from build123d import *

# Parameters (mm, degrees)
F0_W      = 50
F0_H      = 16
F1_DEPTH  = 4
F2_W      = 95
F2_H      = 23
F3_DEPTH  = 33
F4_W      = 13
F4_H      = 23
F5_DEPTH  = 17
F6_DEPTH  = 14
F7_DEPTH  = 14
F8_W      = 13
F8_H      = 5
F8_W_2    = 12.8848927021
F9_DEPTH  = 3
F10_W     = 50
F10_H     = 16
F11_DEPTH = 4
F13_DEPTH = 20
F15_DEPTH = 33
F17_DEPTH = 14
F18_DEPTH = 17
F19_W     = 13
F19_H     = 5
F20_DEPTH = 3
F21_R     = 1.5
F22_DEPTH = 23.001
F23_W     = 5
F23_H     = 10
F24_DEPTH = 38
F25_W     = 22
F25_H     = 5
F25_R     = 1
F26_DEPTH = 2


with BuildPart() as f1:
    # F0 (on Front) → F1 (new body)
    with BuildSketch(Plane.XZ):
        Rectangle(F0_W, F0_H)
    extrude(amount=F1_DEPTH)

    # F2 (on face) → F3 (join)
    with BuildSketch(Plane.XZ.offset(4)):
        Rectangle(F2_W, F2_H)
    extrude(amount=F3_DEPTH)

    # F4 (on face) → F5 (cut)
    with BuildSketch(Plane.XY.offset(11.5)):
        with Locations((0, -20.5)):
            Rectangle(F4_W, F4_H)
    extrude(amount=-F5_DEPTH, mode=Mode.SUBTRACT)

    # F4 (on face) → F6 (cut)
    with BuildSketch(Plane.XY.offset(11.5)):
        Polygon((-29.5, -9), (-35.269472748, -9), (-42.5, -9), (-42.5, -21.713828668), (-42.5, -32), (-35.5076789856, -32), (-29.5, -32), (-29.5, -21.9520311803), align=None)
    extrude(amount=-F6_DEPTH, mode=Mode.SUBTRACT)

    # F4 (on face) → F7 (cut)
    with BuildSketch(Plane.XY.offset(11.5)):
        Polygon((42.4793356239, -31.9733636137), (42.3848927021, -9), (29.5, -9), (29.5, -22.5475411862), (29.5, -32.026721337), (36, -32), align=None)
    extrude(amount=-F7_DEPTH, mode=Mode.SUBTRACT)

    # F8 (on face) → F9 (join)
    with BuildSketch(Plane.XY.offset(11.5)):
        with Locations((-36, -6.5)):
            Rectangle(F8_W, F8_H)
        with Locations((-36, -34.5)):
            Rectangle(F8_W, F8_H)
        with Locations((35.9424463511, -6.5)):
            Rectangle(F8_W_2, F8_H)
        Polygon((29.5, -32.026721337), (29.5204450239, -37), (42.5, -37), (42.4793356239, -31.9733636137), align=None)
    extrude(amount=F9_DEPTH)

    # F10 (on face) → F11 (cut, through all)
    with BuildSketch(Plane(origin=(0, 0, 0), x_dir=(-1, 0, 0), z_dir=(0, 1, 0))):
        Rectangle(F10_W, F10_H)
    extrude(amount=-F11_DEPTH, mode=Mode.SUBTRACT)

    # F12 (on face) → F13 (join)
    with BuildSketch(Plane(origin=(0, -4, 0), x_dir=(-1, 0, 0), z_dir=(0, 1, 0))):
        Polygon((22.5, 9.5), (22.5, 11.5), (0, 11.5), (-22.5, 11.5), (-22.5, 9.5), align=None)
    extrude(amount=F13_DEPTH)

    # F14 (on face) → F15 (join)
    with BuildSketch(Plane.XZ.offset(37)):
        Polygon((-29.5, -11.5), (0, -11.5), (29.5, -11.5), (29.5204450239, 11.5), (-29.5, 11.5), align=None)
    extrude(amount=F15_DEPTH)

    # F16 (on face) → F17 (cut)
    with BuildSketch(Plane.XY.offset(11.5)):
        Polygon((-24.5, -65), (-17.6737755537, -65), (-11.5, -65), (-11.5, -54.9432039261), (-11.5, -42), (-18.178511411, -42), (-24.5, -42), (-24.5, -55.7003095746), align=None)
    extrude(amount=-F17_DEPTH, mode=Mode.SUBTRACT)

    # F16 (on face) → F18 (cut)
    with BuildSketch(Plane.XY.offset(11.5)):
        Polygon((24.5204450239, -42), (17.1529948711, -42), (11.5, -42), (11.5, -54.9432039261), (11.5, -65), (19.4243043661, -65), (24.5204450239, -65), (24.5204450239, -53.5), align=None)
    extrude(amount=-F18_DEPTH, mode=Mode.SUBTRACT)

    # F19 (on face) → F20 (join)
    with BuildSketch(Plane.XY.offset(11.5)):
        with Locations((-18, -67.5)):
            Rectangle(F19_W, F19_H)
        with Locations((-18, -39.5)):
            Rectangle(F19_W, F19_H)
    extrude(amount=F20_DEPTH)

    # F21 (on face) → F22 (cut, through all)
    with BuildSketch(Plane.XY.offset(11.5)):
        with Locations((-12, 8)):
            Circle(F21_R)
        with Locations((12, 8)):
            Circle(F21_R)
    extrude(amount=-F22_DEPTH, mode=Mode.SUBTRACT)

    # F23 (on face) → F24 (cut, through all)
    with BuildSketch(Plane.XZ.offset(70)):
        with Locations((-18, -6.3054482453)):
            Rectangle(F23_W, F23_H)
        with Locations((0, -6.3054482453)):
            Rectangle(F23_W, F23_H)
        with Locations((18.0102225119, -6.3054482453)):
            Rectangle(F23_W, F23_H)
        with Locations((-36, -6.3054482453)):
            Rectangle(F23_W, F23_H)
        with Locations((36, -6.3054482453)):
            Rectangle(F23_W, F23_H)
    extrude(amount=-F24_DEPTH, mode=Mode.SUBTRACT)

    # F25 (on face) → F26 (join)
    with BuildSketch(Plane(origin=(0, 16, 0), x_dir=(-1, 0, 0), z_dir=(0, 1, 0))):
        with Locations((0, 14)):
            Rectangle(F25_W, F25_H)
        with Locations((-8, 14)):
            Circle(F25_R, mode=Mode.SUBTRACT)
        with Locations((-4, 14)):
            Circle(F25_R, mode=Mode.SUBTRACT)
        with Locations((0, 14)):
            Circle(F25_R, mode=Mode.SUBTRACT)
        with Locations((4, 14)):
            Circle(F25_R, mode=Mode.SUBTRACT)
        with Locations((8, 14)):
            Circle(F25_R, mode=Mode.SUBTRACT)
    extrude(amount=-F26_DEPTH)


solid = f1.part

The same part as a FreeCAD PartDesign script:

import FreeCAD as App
import Part
import Sketcher

V = App.Vector


def add_polygon(sketch, points):
    """Adds a closed chain of lines whose ends are joined by coincident constraints."""
    first, n = sketch.GeometryCount, len(points)
    for a, b in zip(points, points[1:] + points[:1]):
        sketch.addGeometry(Part.LineSegment(App.Vector(*a, 0), App.Vector(*b, 0)), False)
    for i in range(n):
        sketch.addConstraint(Sketcher.Constraint("Coincident", first + i, 2, first + (i + 1) % n, 1))

doc = App.newDocument("Part")
body = doc.addObject("PartDesign::Body", "Body")

# Sketch on XZ plane
sketch1 = body.newObject("Sketcher::SketchObject", "Sketch")
sketch1.AttachmentSupport = (doc.getObject("XZ_Plane"), [""])
sketch1.MapMode = "FlatFace"
add_polygon(sketch1, [(-25, 8), (-25, -8), (25, -8), (25, 8)])  # lines 0-3
sketch1.addConstraint([
    Sketcher.Constraint("Vertical", 0),
    Sketcher.Constraint("Horizontal", 1),
    Sketcher.Constraint("Vertical", 2),
    Sketcher.Constraint("Horizontal", 3),
    Sketcher.Constraint("Symmetric", 0, 2, 2, 2, -1, 1),
    Sketcher.Constraint("DistanceX", 1, 1, 1, 2, 50.0),
    Sketcher.Constraint("DistanceY", 0, 2, 0, 1, 16.0),
])
pad1 = body.newObject("PartDesign::Pad", "Pad")
pad1.Profile = sketch1
pad1.Length = 4

# Sketch on XZ plane
sketch2 = body.newObject("Sketcher::SketchObject", "Sketch001")
sketch2.AttachmentSupport = (doc.getObject("XZ_Plane"), [""])
sketch2.MapMode = "FlatFace"
sketch2.AttachmentOffset = App.Placement(V(0, 0, 4), App.Rotation())
add_polygon(sketch2, [(-47.5, 11.5), (-47.5, -11.5), (47.5, -11.5), (47.5, 11.5)])  # lines 0-3
sketch2.addConstraint([
    Sketcher.Constraint("Vertical", 0),
    Sketcher.Constraint("Horizontal", 1),
    Sketcher.Constraint("Vertical", 2),
    Sketcher.Constraint("Horizontal", 3),
    Sketcher.Constraint("Symmetric", 0, 2, 2, 2, -1, 1),
    Sketcher.Constraint("DistanceX", 1, 1, 1, 2, 95.0),
    Sketcher.Constraint("DistanceY", 0, 2, 0, 1, 23.0),
])
pad2 = body.newObject("PartDesign::Pad", "Pad001")
pad2.Profile = sketch2
pad2.Length = 33

# Sketch on XY plane
sketch3 = body.newObject("Sketcher::SketchObject", "Sketch002")
sketch3.AttachmentSupport = (doc.getObject("XY_Plane"), [""])
sketch3.MapMode = "FlatFace"
sketch3.AttachmentOffset = App.Placement(V(0, 0, 11.5), App.Rotation())
add_polygon(sketch3, [(-6.5, -9), (-6.5, -32), (6.5, -32), (6.5, -9)])  # lines 0-3
sketch3.addConstraint([
    Sketcher.Constraint("Vertical", 0),
    Sketcher.Constraint("Horizontal", 1),
    Sketcher.Constraint("Vertical", 2),
    Sketcher.Constraint("Horizontal", 3),
    Sketcher.Constraint("DistanceX", 1, 1, 1, 2, 13.0),
    Sketcher.Constraint("DistanceY", 0, 2, 0, 1, 23.0),
    Sketcher.Constraint("DistanceY", 0, 2, -1, 1, 32.0),
    Sketcher.Constraint("DistanceX", 0, 2, -1, 1, 6.5),
])
pocket1 = body.newObject("PartDesign::Pocket", "Pocket")
pocket1.Profile = sketch3
pocket1.Length = 17

# Sketch on XY plane
sketch4 = body.newObject("Sketcher::SketchObject", "Sketch003")
sketch4.AttachmentSupport = (doc.getObject("XY_Plane"), [""])
sketch4.MapMode = "FlatFace"
sketch4.AttachmentOffset = App.Placement(V(0, 0, 11.5), App.Rotation())
add_polygon(sketch4, [(-29.5, -9), (-42.5, -9), (-42.5, -32), (-29.5, -32)])  # lines 0-3
sketch4.addConstraint([
    Sketcher.Constraint("Horizontal", 0),
    Sketcher.Constraint("Vertical", 1),
    Sketcher.Constraint("Horizontal", 2),
    Sketcher.Constraint("Vertical", 3),
    Sketcher.Constraint("DistanceX", 0, 2, 0, 1, 13.0),
    Sketcher.Constraint("DistanceY", 1, 2, 1, 1, 23.0),
    Sketcher.Constraint("DistanceY", 0, 2, -1, 1, 9.0),
    Sketcher.Constraint("DistanceX", 0, 2, -1, 1, 42.5),
])
pocket2 = body.newObject("PartDesign::Pocket", "Pocket001")
pocket2.Profile = sketch4
pocket2.Length = 14

# Sketch on XY plane
sketch5 = body.newObject("Sketcher::SketchObject", "Sketch004")
sketch5.AttachmentSupport = (doc.getObject("XY_Plane"), [""])
sketch5.MapMode = "FlatFace"
sketch5.AttachmentOffset = App.Placement(V(0, 0, 11.5), App.Rotation())
add_polygon(sketch5, [(42.479336, -31.973364), (42.384893, -9), (29.5, -9), (29.5, -32.026721), (36, -32)])  # lines 0-4
sketch5.addConstraint([
    Sketcher.Constraint("Horizontal", 1),
    Sketcher.Constraint("Vertical", 2),
    Sketcher.Constraint("Perpendicular", 0, 3),
    Sketcher.Constraint("Parallel", 3, 4),
    Sketcher.Constraint("DistanceY", 0, 2, -1, 1, 9.0),
    Sketcher.Constraint("DistanceX", -1, 1, 3, 2, 36.0),
    Sketcher.Constraint("DistanceY", 3, 2, -1, 1, 32.0),
    Sketcher.Constraint("DistanceX", -1, 1, 1, 2, 29.5),
    Sketcher.Constraint("DistanceY", 2, 2, 2, 1, 23.026721),
    Sketcher.Constraint("Distance", 4, 6.47939),
])
pocket3 = body.newObject("PartDesign::Pocket", "Pocket002")
pocket3.Profile = sketch5
pocket3.Length = 14

# Sketch on XY plane
sketch6 = body.newObject("Sketcher::SketchObject", "Sketch005")
sketch6.AttachmentSupport = (doc.getObject("XY_Plane"), [""])
sketch6.MapMode = "FlatFace"
sketch6.AttachmentOffset = App.Placement(V(0, 0, 11.5), App.Rotation())
add_polygon(sketch6, [(-42.5, -4), (-42.5, -9), (-29.5, -9), (-29.5, -4)])  # lines 0-3
add_polygon(sketch6, [(-42.5, -32), (-42.5, -37), (-29.5, -37), (-29.5, -32)])  # lines 4-7
add_polygon(sketch6, [(29.5, -4), (29.5, -9), (42.384893, -9), (42.384893, -4)])  # lines 8-11
add_polygon(sketch6, [(29.5, -32.026721), (29.520445, -37), (42.5, -37), (42.479336, -31.973364)])  # lines 12-15
sketch6.addConstraint([
    Sketcher.Constraint("Vertical", 0),
    Sketcher.Constraint("Horizontal", 1),
    Sketcher.Constraint("Vertical", 2),
    Sketcher.Constraint("Horizontal", 3),
    Sketcher.Constraint("Vertical", 4),
    Sketcher.Constraint("Horizontal", 5),
    Sketcher.Constraint("Vertical", 6),
    Sketcher.Constraint("Horizontal", 7),
    Sketcher.Constraint("Vertical", 8),
    Sketcher.Constraint("Horizontal", 9),
    Sketcher.Constraint("Vertical", 10),
    Sketcher.Constraint("Horizontal", 11),
    Sketcher.Constraint("Horizontal", 13),
    Sketcher.Constraint("Symmetric", 1, 2, 8, 2, -2),
    Sketcher.Constraint("Symmetric", 4, 2, 13, 2, -2),
    Sketcher.Constraint("Parallel", 12, 14),
    Sketcher.Constraint("Perpendicular", 14, 15),
    Sketcher.Constraint("Horizontal", 3, 2, 10, 2),
    Sketcher.Constraint("Vertical", 3, 2, 4, 2),
    Sketcher.Constraint("Vertical", 2, 2, 5, 2),
    Sketcher.Constraint("Vertical", 11, 2, 15, 2),
    Sketcher.Constraint("Equal", 2, 4),
    Sketcher.Constraint("DistanceX", 1, 1, 1, 2, 13.0),
    Sketcher.Constraint("DistanceY", 0, 2, 0, 1, 5.0),
    Sketcher.Constraint("DistanceY", 0, 2, -1, 1, 9.0),
    Sketcher.Constraint("DistanceY", 4, 2, -1, 1, 37.0),
    Sketcher.Constraint("DistanceX", 1, 2, 8, 2, 59.0),
    Sketcher.Constraint("Distance", 12, 4.973321),
    Sketcher.Constraint("Distance", 14, 5.026679),
    Sketcher.Constraint("DistanceX", 9, 1, 9, 2, 12.884893),
])
pad3 = body.newObject("PartDesign::Pad", "Pad002")
pad3.Profile = sketch6
pad3.Length = 3

# Sketch on XZ plane
sketch7 = body.newObject("Sketcher::SketchObject", "Sketch006")
sketch7.AttachmentSupport = (doc.getObject("XZ_Plane"), [""])
sketch7.MapMode = "FlatFace"
add_polygon(sketch7, [(25, 8), (25, -8), (-25, -8), (-25, 8)])  # lines 0-3
sketch7.addConstraint([
    Sketcher.Constraint("Vertical", 0),
    Sketcher.Constraint("Horizontal", 1),
    Sketcher.Constraint("Vertical", 2),
    Sketcher.Constraint("Horizontal", 3),
    Sketcher.Constraint("Symmetric", 0, 2, 2, 2, -1, 1),
    Sketcher.Constraint("DistanceX", 1, 2, 1, 1, 50.0),
    Sketcher.Constraint("DistanceY", 0, 2, 0, 1, 16.0),
])
pocket4 = body.newObject("PartDesign::Pocket", "Pocket003")
pocket4.Profile = sketch7
pocket4.Length = 4
pocket4.Reversed = True

# Sketch on XZ plane
sketch8 = body.newObject("Sketcher::SketchObject", "Sketch007")
sketch8.AttachmentSupport = (doc.getObject("XZ_Plane"), [""])
sketch8.MapMode = "FlatFace"
sketch8.AttachmentOffset = App.Placement(V(0, 0, 4), App.Rotation())
add_polygon(sketch8, [(-22.5, 9.5), (-22.5, 11.5), (22.5, 11.5), (22.5, 9.5)])  # lines 0-3
sketch8.addConstraint([
    Sketcher.Constraint("Vertical", 0),
    Sketcher.Constraint("Horizontal", 1),
    Sketcher.Constraint("Vertical", 2),
    Sketcher.Constraint("Horizontal", 3),
    Sketcher.Constraint("DistanceX", 1, 1, 1, 2, 45.0),
    Sketcher.Constraint("DistanceY", 0, 1, 0, 2, 2.0),
    Sketcher.Constraint("DistanceX", 0, 2, -1, 1, 22.5),
    Sketcher.Constraint("DistanceY", -1, 1, 0, 2, 11.5),
])
pad4 = body.newObject("PartDesign::Pad", "Pad003")
pad4.Profile = sketch8
pad4.Length = 20
pad4.Reversed = True

# Sketch on XZ plane
sketch9 = body.newObject("Sketcher::SketchObject", "Sketch008")
sketch9.AttachmentSupport = (doc.getObject("XZ_Plane"), [""])
sketch9.MapMode = "FlatFace"
sketch9.AttachmentOffset = App.Placement(V(0, 0, 37), App.Rotation())
add_polygon(sketch9, [(-29.5, -11.5), (29.5, -11.5), (29.520445, 11.5), (-29.5, 11.5)])  # lines 0-3
sketch9.addConstraint([
    Sketcher.Constraint("Horizontal", 0),
    Sketcher.Constraint("Horizontal", 2),
    Sketcher.Constraint("Vertical", 3),
    Sketcher.Constraint("Symmetric", 0, 2, 2, 2, -1, 1),
    Sketcher.Constraint("DistanceX", 0, 1, 0, 2, 59.0),
    Sketcher.Constraint("DistanceY", 3, 2, 3, 1, 23.0),
    Sketcher.Constraint("DistanceX", 2, 2, 2, 1, 59.020445),
])
pad5 = body.newObject("PartDesign::Pad", "Pad004")
pad5.Profile = sketch9
pad5.Length = 33

# Sketch on XY plane
sketch10 = body.newObject("Sketcher::SketchObject", "Sketch009")
sketch10.AttachmentSupport = (doc.getObject("XY_Plane"), [""])
sketch10.MapMode = "FlatFace"
sketch10.AttachmentOffset = App.Placement(V(0, 0, 11.5), App.Rotation())
add_polygon(sketch10, [(-24.5, -65), (-11.5, -65), (-11.5, -42), (-24.5, -42)])  # lines 0-3
sketch10.addConstraint([
    Sketcher.Constraint("Horizontal", 0),
    Sketcher.Constraint("Vertical", 1),
    Sketcher.Constraint("Horizontal", 2),
    Sketcher.Constraint("Vertical", 3),
    Sketcher.Constraint("DistanceX", 0, 1, 0, 2, 13.0),
    Sketcher.Constraint("DistanceY", 1, 1, 1, 2, 23.0),
    Sketcher.Constraint("DistanceY", 0, 2, -1, 1, 65.0),
    Sketcher.Constraint("DistanceX", 0, 2, -1, 1, 11.5),
])
pocket5 = body.newObject("PartDesign::Pocket", "Pocket004")
pocket5.Profile = sketch10
pocket5.Length = 14

# Sketch on XY plane
sketch11 = body.newObject("Sketcher::SketchObject", "Sketch010")
sketch11.AttachmentSupport = (doc.getObject("XY_Plane"), [""])
sketch11.MapMode = "FlatFace"
sketch11.AttachmentOffset = App.Placement(V(0, 0, 11.5), App.Rotation())
add_polygon(sketch11, [(24.520445, -42), (11.5, -42), (11.5, -65), (24.520445, -65)])  # lines 0-3
sketch11.addConstraint([
    Sketcher.Constraint("Horizontal", 0),
    Sketcher.Constraint("Vertical", 1),
    Sketcher.Constraint("Horizontal", 2),
    Sketcher.Constraint("Vertical", 3),
    Sketcher.Constraint("DistanceY", 1, 2, 1, 1, 23.0),
    Sketcher.Constraint("DistanceY", 0, 2, -1, 1, 42.0),
    Sketcher.Constraint("DistanceX", -1, 1, 0, 2, 11.5),
    Sketcher.Constraint("DistanceX", 0, 2, 0, 1, 13.020445),
])
pocket6 = body.newObject("PartDesign::Pocket", "Pocket005")
pocket6.Profile = sketch11
pocket6.Length = 17

# Sketch on XY plane
sketch12 = body.newObject("Sketcher::SketchObject", "Sketch011")
sketch12.AttachmentSupport = (doc.getObject("XY_Plane"), [""])
sketch12.MapMode = "FlatFace"
sketch12.AttachmentOffset = App.Placement(V(0, 0, 11.5), App.Rotation())
add_polygon(sketch12, [(-24.5, -65), (-24.5, -70), (-11.5, -70), (-11.5, -65)])  # lines 0-3
add_polygon(sketch12, [(-24.5, -37), (-24.5, -42), (-11.5, -42), (-11.5, -37)])  # lines 4-7
sketch12.addConstraint([
    Sketcher.Constraint("Vertical", 0),
    Sketcher.Constraint("Horizontal", 1),
    Sketcher.Constraint("Vertical", 2),
    Sketcher.Constraint("Horizontal", 3),
    Sketcher.Constraint("Vertical", 4),
    Sketcher.Constraint("Horizontal", 5),
    Sketcher.Constraint("Vertical", 6),
    Sketcher.Constraint("Horizontal", 7),
    Sketcher.Constraint("Vertical", 3, 2, 4, 2),
    Sketcher.Constraint("Vertical", 2, 2, 5, 2),
    Sketcher.Constraint("Equal", 2, 4),
    Sketcher.Constraint("DistanceX", 1, 1, 1, 2, 13.0),
    Sketcher.Constraint("DistanceY", 0, 2, 0, 1, 5.0),
    Sketcher.Constraint("DistanceY", 0, 2, -1, 1, 70.0),
    Sketcher.Constraint("DistanceY", 4, 2, -1, 1, 42.0),
    Sketcher.Constraint("DistanceX", 0, 2, -1, 1, 24.5),
])
pad6 = body.newObject("PartDesign::Pad", "Pad005")
pad6.Profile = sketch12
pad6.Length = 3

# Sketch on XY plane
sketch13 = body.newObject("Sketcher::SketchObject", "Sketch012")
sketch13.AttachmentSupport = (doc.getObject("XY_Plane"), [""])
sketch13.MapMode = "FlatFace"
sketch13.AttachmentOffset = App.Placement(V(0, 0, 11.5), App.Rotation())
sketch13.addGeometry([
    Part.Circle(V(-12, 8, 0), V(0, 0, 1), 1.5),
    Part.Circle(V(12, 8, 0), V(0, 0, 1), 1.5),
], False)
sketch13.addConstraint([
    Sketcher.Constraint("Equal", 0, 1),
    Sketcher.Constraint("Symmetric", 0, 3, 1, 3, -2),
    Sketcher.Constraint("Diameter", 0, 3.0),
    Sketcher.Constraint("DistanceX", 0, 3, -1, 1, 12.0),
    Sketcher.Constraint("DistanceY", -1, 1, 0, 3, 8.0),
])
pocket7 = body.newObject("PartDesign::Pocket", "Pocket006")
pocket7.Profile = sketch13
pocket7.Type = "ThroughAll"

# Sketch on XZ plane
sketch14 = body.newObject("Sketcher::SketchObject", "Sketch013")
sketch14.AttachmentSupport = (doc.getObject("XZ_Plane"), [""])
sketch14.MapMode = "FlatFace"
sketch14.AttachmentOffset = App.Placement(V(0, 0, 70), App.Rotation())
add_polygon(sketch14, [(-20.5, -1.305448), (-20.5, -11.305448), (-15.5, -11.305448), (-15.5, -1.305448)])  # lines 0-3
add_polygon(sketch14, [(-2.5, -1.305448), (-2.5, -11.305448), (2.5, -11.305448), (2.5, -1.305448)])  # lines 4-7
add_polygon(sketch14, [(15.510223, -1.305448), (15.510223, -11.305448), (20.510223, -11.305448), (20.510223, -1.305448)])  # lines 8-11
add_polygon(sketch14, [(-38.5, -1.305448), (-38.5, -11.305448), (-33.5, -11.305448), (-33.5, -1.305448)])  # lines 12-15
add_polygon(sketch14, [(33.5, -1.305448), (33.5, -11.305448), (38.5, -11.305448), (38.5, -1.305448)])  # lines 16-19
sketch14.addConstraint([
    Sketcher.Constraint("Vertical", 0),
    Sketcher.Constraint("Horizontal", 1),
    Sketcher.Constraint("Vertical", 2),
    Sketcher.Constraint("Horizontal", 3),
    Sketcher.Constraint("Vertical", 4),
    Sketcher.Constraint("Horizontal", 5),
    Sketcher.Constraint("Vertical", 6),
    Sketcher.Constraint("Horizontal", 7),
    Sketcher.Constraint("Vertical", 8),
    Sketcher.Constraint("Horizontal", 9),
    Sketcher.Constraint("Vertical", 10),
    Sketcher.Constraint("Horizontal", 11),
    Sketcher.Constraint("Vertical", 12),
    Sketcher.Constraint("Horizontal", 13),
    Sketcher.Constraint("Vertical", 14),
    Sketcher.Constraint("Horizontal", 15),
    Sketcher.Constraint("Vertical", 16),
    Sketcher.Constraint("Horizontal", 17),
    Sketcher.Constraint("Vertical", 18),
    Sketcher.Constraint("Horizontal", 19),
    Sketcher.Constraint("Symmetric", 13, 2, 16, 2, -2),
    Sketcher.Constraint("Symmetric", 15, 2, 18, 2, -2),
    Sketcher.Constraint("Horizontal", 1, 2, 4, 2),
    Sketcher.Constraint("Horizontal", 3, 2, 6, 2),
    Sketcher.Constraint("Horizontal", 5, 2, 8, 2),
    Sketcher.Constraint("Horizontal", 7, 2, 10, 2),
    Sketcher.Constraint("Horizontal", 9, 2, 12, 2),
    Sketcher.Constraint("Horizontal", 11, 2, 14, 2),
    Sketcher.Constraint("Equal", 3, 5),
    Sketcher.Constraint("Equal", 7, 9),
    Sketcher.Constraint("Equal", 11, 13),
    Sketcher.Constraint("DistanceX", 1, 1, 1, 2, 5.0),
    Sketcher.Constraint("DistanceY", 0, 2, 0, 1, 10.0),
    Sketcher.Constraint("DistanceX", 1, 2, 4, 2, 13.0),
    Sketcher.Constraint("DistanceX", 12, 2, 0, 2, 18.0),
    Sketcher.Constraint("DistanceX", 5, 2, 16, 2, 31.0),
    Sketcher.Constraint("DistanceY", 0, 2, -1, 1, 11.305448),
    Sketcher.Constraint("DistanceX", -1, 1, 8, 2, 15.510223),
])
pocket8 = body.newObject("PartDesign::Pocket", "Pocket007")
pocket8.Profile = sketch14
pocket8.Length = 38

# Sketch on XZ plane
sketch15 = body.newObject("Sketcher::SketchObject", "Sketch014")
sketch15.AttachmentSupport = (doc.getObject("XZ_Plane"), [""])
sketch15.MapMode = "FlatFace"
sketch15.AttachmentOffset = App.Placement(V(0, 0, -16), App.Rotation())
add_polygon(sketch15, [(11, 16.5), (11, 11.5), (-11, 11.5), (-11, 16.5)])  # lines 0-3
sketch15.addGeometry(Part.Circle(V(8, 14, 0), V(0, 0, 1), 1), False)  # 4
sketch15.addGeometry(Part.Circle(V(4, 14, 0), V(0, 0, 1), 1), False)  # 5
sketch15.addGeometry(Part.Circle(V(0, 14, 0), V(0, 0, 1), 1), False)  # 6
sketch15.addGeometry(Part.Circle(V(-4, 14, 0), V(0, 0, 1), 1), False)  # 7
sketch15.addGeometry(Part.Circle(V(-8, 14, 0), V(0, 0, 1), 1), False)  # 8
sketch15.addConstraint([
    Sketcher.Constraint("Vertical", 0),
    Sketcher.Constraint("Horizontal", 1),
    Sketcher.Constraint("Vertical", 2),
    Sketcher.Constraint("Horizontal", 3),
    Sketcher.Constraint("Equal", 4, 5),
    Sketcher.Constraint("Equal", 5, 6),
    Sketcher.Constraint("Equal", 6, 7),
    Sketcher.Constraint("Equal", 7, 8),
    Sketcher.Constraint("Symmetric", 5, 3, 7, 3, -2),
    Sketcher.Constraint("Symmetric", 4, 3, 8, 3, -2),
    Sketcher.Constraint("PointOnObject", 6, 3, -2),
    Sketcher.Constraint("Horizontal", 4, 3, 5, 3),
    Sketcher.Constraint("Horizontal", 5, 3, 6, 3),
    Sketcher.Constraint("Diameter", 4, 2.0),
    Sketcher.Constraint("DistanceX", 1, 2, 1, 1, 22.0),
    Sketcher.Constraint("DistanceY", 0, 2, 0, 1, 5.0),
    Sketcher.Constraint("DistanceX", -1, 1, 4, 3, 8.0),
    Sketcher.Constraint("DistanceY", -1, 1, 4, 3, 14.0),
    Sketcher.Constraint("DistanceX", -1, 1, 5, 3, 4.0),
    Sketcher.Constraint("DistanceX", -1, 1, 0, 2, 11.0),
    Sketcher.Constraint("DistanceY", -1, 1, 0, 2, 11.5),
])
pad7 = body.newObject("PartDesign::Pad", "Pad006")
pad7.Profile = sketch15
pad7.Length = 2

doc.recompute()
